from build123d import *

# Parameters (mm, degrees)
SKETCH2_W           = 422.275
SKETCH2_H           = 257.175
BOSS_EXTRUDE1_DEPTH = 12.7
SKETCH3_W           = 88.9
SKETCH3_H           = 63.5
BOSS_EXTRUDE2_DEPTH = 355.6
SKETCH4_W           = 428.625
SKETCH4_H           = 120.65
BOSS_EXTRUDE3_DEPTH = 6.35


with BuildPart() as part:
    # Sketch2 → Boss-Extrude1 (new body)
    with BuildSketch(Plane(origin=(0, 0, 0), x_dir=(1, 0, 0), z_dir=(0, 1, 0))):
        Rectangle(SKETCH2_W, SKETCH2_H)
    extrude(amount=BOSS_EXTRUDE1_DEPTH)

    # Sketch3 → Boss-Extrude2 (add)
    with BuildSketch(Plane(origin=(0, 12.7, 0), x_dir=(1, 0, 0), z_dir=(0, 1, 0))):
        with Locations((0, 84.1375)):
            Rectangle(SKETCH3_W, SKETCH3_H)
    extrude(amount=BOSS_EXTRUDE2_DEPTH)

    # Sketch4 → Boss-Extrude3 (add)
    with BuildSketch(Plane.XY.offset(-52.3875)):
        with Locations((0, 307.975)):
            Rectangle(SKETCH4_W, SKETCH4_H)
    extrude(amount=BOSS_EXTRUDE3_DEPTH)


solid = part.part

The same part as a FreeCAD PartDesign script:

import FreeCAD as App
import Part
import Sketcher
Q = App.Units.Quantity

doc = App.newDocument("Part")
body = doc.addObject("PartDesign::Body", "Body")

# Sketch on XZ plane
sketch1 = doc.addObject("Sketcher::SketchObject", "Sketch")
body.addObject(sketch1)
sketch1.AttachmentSupport = (doc.XZ_Plane, [""])
sketch1.MapMode = "FlatFace"
sketch1.addGeometry(Part.LineSegment(App.Vector(-211, -129, 0), App.Vector(-211, 129, 0)), False)
sketch1.addGeometry(Part.LineSegment(App.Vector(-211, 129, 0), App.Vector(211, 129, 0)), False)
sketch1.addGeometry(Part.LineSegment(App.Vector(211, 129, 0), App.Vector(211, -129, 0)), False)
sketch1.addGeometry(Part.LineSegment(App.Vector(211, -129, 0), App.Vector(-211, -129, 0)), False)
sketch1.addConstraint(Sketcher.Constraint("Coincident", 0, 2, 1, 1))
sketch1.addConstraint(Sketcher.Constraint("Coincident", 1, 2, 2, 1))
sketch1.addConstraint(Sketcher.Constraint("Coincident", 2, 2, 3, 1))
sketch1.addConstraint(Sketcher.Constraint("Coincident", 3, 2, 0, 1))
sketch1.addConstraint(Sketcher.Constraint("Vertical", 0))
sketch1.addConstraint(Sketcher.Constraint("Horizontal", 1))
sketch1.addConstraint(Sketcher.Constraint("Vertical", 2))
sketch1.addConstraint(Sketcher.Constraint("Horizontal", 3))
sketch1.addConstraint(Sketcher.Constraint("Symmetric", 0, 2, 2, 2, -1, 1))
sketch1.addConstraint(Sketcher.Constraint("DistanceX", 1, 1, 1, 2, Q("16.625 in")))
sketch1.addConstraint(Sketcher.Constraint("DistanceY", 0, 1, 0, 2, Q("10.125 in")))
pad1 = doc.addObject("PartDesign::Pad", "Pad")
body.addObject(pad1)
pad1.Profile = sketch1
pad1.Length = Q("0.5 in")
pad1.Reversed = True

# Sketch on XZ plane
sketch2 = doc.addObject("Sketcher::SketchObject", "Sketch001")
body.addObject(sketch2)
sketch2.AttachmentSupport = (doc.XZ_Plane, [""])
sketch2.MapMode = "FlatFace"
sketch2.AttachmentOffset = App.Placement(App.Vector(0, 0, -0.5 * 25.4), App.Rotation())
sketch2.addGeometry(Part.LineSegment(App.Vector(-44, -116, 0), App.Vector(-44, -52, 0)), False)
sketch2.addGeometry(Part.LineSegment(App.Vector(-44, -52, 0), App.Vector(44, -52, 0)), False)
sketch2.addGeometry(Part.LineSegment(App.Vector(44, -52, 0), App.Vector(44, -116, 0)), False)
sketch2.addGeometry(Part.LineSegment(App.Vector(44, -116, 0), App.Vector(-44, -116, 0)), False)
sketch2.addConstraint(Sketcher.Constraint("Coincident", 0, 2, 1, 1))
sketch2.addConstraint(Sketcher.Constraint("Coincident", 1, 2, 2, 1))
sketch2.addConstraint(Sketcher.Constraint("Coincident", 2, 2, 3, 1))
sketch2.addConstraint(Sketcher.Constraint("Coincident", 3, 2, 0, 1))
sketch2.addConstraint(Sketcher.Constraint("Vertical", 0))
sketch2.addConstraint(Sketcher.Constraint("Horizontal", 1))
sketch2.addConstraint(Sketcher.Constraint("Vertical", 2))
sketch2.addConstraint(Sketcher.Constraint("Horizontal", 3))
sketch2.addConstraint(Sketcher.Constraint("DistanceX", 1, 1, 1, 2, Q("3.5 in")))
sketch2.addConstraint(Sketcher.Constraint("DistanceY", 0, 1, 0, 2, Q("2.5 in")))
sketch2.addConstraint(Sketcher.Constraint("DistanceX", 0, 2, -1, 1, Q("1.75 in")))
sketch2.addConstraint(Sketcher.Constraint("DistanceY", 0, 2, -1, 1, Q("2.0625 in")))
pad2 = doc.addObject("PartDesign::Pad", "Pad001")
body.addObject(pad2)
pad2.Profile = sketch2
pad2.Length = Q("14 in")
pad2.Reversed = True

# Sketch on XY plane
sketch3 = doc.addObject("Sketcher::SketchObject", "Sketch002")
body.addObject(sketch3)
sketch3.AttachmentSupport = (doc.XY_Plane, [""])
sketch3.MapMode = "FlatFace"
sketch3.AttachmentOffset = App.Placement(App.Vector(0, 0, -2.0625 * 25.4), App.Rotation())
sketch3.addGeometry(Part.LineSegment(App.Vector(-214, 368, 0), App.Vector(-214, 248, 0)), False)
sketch3.addGeometry(Part.LineSegment(App.Vector(-214, 248, 0), App.Vector(214, 248, 0)), False)
sketch3.addGeometry(Part.LineSegment(App.Vector(214, 248, 0), App.Vector(214, 368, 0)), False)
sketch3.addGeometry(Part.LineSegment(App.Vector(214, 368, 0), App.Vector(-214, 368, 0)), False)
sketch3.addConstraint(Sketcher.Constraint("Coincident", 0, 2, 1, 1))
sketch3.addConstraint(Sketcher.Constraint("Coincident", 1, 2, 2, 1))
sketch3.addConstraint(Sketcher.Constraint("Coincident", 2, 2, 3, 1))
sketch3.addConstraint(Sketcher.Constraint("Coincident", 3, 2, 0, 1))
sketch3.addConstraint(Sketcher.Constraint("Vertical", 0))
sketch3.addConstraint(Sketcher.Constraint("Horizontal", 1))
sketch3.addConstraint(Sketcher.Constraint("Vertical", 2))
sketch3.addConstraint(Sketcher.Constraint("Horizontal", 3))
sketch3.addConstraint(Sketcher.Constraint("DistanceY", 0, 2, 0, 1, Q("4.75 in")))
sketch3.addConstraint(Sketcher.Constraint("DistanceY", -1, 1, 2, 2, Q("14.5 in")))
sketch3.addConstraint(Sketcher.Constraint("DistanceX", 1, 1, 1, 2, Q("16.875 in")))
sketch3.addConstraint(Sketcher.Constraint("DistanceX", 0, 2, -1, 1, Q("8.4375 in")))
pad3 = doc.addObject("PartDesign::Pad", "Pad002")
body.addObject(pad3)
pad3.Profile = sketch3
pad3.Length = Q("0.25 in")

doc.recompute()
